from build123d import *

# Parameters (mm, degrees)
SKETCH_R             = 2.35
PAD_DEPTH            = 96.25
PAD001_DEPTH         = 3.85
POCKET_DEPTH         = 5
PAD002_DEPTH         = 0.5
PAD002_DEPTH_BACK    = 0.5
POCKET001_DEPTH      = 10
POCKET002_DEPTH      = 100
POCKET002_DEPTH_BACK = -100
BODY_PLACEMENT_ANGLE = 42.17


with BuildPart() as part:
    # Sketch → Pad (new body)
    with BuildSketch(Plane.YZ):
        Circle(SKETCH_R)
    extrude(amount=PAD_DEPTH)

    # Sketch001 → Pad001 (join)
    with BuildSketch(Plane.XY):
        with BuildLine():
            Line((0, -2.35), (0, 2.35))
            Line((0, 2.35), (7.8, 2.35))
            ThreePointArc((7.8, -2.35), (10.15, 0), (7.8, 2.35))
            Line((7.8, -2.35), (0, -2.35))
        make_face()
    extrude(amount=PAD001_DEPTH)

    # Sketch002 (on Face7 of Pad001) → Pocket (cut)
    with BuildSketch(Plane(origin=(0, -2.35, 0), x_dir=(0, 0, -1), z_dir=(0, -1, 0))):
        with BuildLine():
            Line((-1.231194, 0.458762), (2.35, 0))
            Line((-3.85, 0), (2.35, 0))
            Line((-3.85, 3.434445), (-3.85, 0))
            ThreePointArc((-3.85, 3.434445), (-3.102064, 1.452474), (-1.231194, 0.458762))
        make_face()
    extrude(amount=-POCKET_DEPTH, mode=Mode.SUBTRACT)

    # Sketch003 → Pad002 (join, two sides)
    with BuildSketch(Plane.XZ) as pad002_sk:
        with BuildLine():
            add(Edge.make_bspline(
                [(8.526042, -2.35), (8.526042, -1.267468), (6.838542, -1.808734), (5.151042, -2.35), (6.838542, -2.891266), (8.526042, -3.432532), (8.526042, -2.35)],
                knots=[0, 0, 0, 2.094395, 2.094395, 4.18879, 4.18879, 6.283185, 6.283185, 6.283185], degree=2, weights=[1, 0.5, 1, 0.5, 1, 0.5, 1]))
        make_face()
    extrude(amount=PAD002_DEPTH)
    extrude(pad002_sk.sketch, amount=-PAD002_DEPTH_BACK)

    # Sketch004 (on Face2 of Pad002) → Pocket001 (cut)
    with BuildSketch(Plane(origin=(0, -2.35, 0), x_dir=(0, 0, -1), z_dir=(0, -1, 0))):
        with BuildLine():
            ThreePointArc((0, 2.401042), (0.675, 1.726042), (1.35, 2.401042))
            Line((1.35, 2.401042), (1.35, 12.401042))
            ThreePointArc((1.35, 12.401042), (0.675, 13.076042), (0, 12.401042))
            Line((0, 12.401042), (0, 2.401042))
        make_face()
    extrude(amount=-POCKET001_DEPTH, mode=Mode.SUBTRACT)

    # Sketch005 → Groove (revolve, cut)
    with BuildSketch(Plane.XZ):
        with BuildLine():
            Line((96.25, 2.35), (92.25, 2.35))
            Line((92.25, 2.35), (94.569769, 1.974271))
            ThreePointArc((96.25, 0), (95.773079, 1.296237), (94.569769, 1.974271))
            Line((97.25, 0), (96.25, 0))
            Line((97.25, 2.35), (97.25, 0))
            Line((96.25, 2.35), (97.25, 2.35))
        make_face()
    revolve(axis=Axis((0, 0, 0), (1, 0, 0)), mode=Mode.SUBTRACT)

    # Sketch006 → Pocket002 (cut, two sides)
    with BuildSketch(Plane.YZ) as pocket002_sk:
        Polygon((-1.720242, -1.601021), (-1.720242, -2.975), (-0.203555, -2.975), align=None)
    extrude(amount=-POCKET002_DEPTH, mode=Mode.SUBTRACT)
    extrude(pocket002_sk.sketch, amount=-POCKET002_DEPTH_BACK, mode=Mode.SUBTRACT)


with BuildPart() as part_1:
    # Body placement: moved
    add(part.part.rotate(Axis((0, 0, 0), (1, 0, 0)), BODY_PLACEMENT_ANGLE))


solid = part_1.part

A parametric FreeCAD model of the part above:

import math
import FreeCAD as App
import Part
import Sketcher
Q = App.Units.Quantity

doc = App.newDocument("Part")
body = doc.addObject("PartDesign::Body", "Body")

sketch1 = body.newObject("Sketcher::SketchObject", "Sketch")
sketch1.AttachmentSupport = (doc.getObject("YZ_Plane"), [""])
sketch1.MapMode = "FlatFace"
sketch1.addGeometry(Part.Circle(App.Vector(0, 0, 0), App.Vector(0, 0, 1), 2.4), False)
sketch1.addConstraint(Sketcher.Constraint("Coincident", 0, 3, -1, 1))
sketch1.addConstraint(Sketcher.Constraint("Diameter", 0, 4.7))
pad1 = body.newObject("PartDesign::Pad", "Pad")
pad1.Profile = sketch1
pad1.Length = 96.25

sketch2 = body.newObject("Sketcher::SketchObject", "Sketch001")
sketch2.AttachmentSupport = (doc.getObject("XY_Plane"), [""])
sketch2.MapMode = "FlatFace"
sketch2.addGeometry(Part.LineSegment(App.Vector(0, 2.4, 0), App.Vector(0, -2.4, 0)), False)
sketch2.addGeometry(Part.LineSegment(App.Vector(0, -2.4, 0), App.Vector(7.8, -2.4, 0)), False)
sketch2.addGeometry(Part.ArcOfCircle(Part.Circle(App.Vector(7.8, 0, 0), App.Vector(0, 0, 1), 2.4), math.radians(-90), math.radians(90)), False)
sketch2.addGeometry(Part.LineSegment(App.Vector(7.8, 2.4, 0), App.Vector(0, 2.4, 0)), False)
sketch2.addConstraint(Sketcher.Constraint("Coincident", 0, 2, 1, 1))
sketch2.addConstraint(Sketcher.Constraint("Tangent", 1, 2, 2, 1))
sketch2.addConstraint(Sketcher.Constraint("Tangent", 2, 2, 3, 1))
sketch2.addConstraint(Sketcher.Constraint("Coincident", 3, 2, 0, 1))
sketch2.addConstraint(Sketcher.Constraint("Vertical", 0))
sketch2.addConstraint(Sketcher.Constraint("Horizontal", 1))
sketch2.addConstraint(Sketcher.Constraint("Horizontal", 3))
sketch2.addConstraint(Sketcher.Constraint("Symmetric", 0, 2, 3, 2, -1, 1))
sketch2.addConstraint(Sketcher.Constraint("Radius", 2, 2.35))
sketch2.addConstraint(Sketcher.Constraint("DistanceX", 1, 1, 1, 2, 7.8))
pad2 = body.newObject("PartDesign::Pad", "Pad001")
pad2.Profile = sketch2
pad2.Length = 3.85

sketch3 = body.newObject("Sketcher::SketchObject", "Sketch002")
sketch3.AttachmentSupport = (doc.getObject("XZ_Plane"), [""])
sketch3.MapMode = "FlatFace"
sketch3.AttachmentOffset = App.Placement(App.Vector(0, 0, 2.35), App.Rotation())
sketch3.addGeometry(Part.LineSegment(App.Vector(0, -2.4, 0), App.Vector(0.5, 1.2, 0)), False)
sketch3.addGeometry(Part.ArcOfCircle(Part.Circle(App.Vector(3.4, 0.9, 0), App.Vector(0, 0, 1), 3), math.radians(90), math.radians(173)), False)
sketch3.addGeometry(Part.LineSegment(App.Vector(3.4, 3.9, 0), App.Vector(0, 3.9, 0)), False)
sketch3.addGeometry(Part.LineSegment(App.Vector(0, 3.9, 0), App.Vector(0, -2.4, 0)), False)
sketch3.addConstraint(Sketcher.Constraint("Tangent", 0, 2, 1, 2))
sketch3.addConstraint(Sketcher.Constraint("Tangent", 1, 1, 2, 1))
sketch3.addConstraint(Sketcher.Constraint("Coincident", 2, 2, 3, 1))
sketch3.addConstraint(Sketcher.Constraint("Coincident", 3, 2, 0, 1))
sketch3.addConstraint(Sketcher.Constraint("Horizontal", 2))
sketch3.addConstraint(Sketcher.Constraint("Vertical", 3))
sketch3.addConstraint(Sketcher.Constraint("PointOnObject", 2, 2, -2))
sketch3.addConstraint(Sketcher.Constraint("Radius", 1, 2.999999))
sketch3.addConstraint(Sketcher.Constraint("DistanceY", 3, 2, 3, 1, 6.2))
sketch3.addConstraint(Sketcher.Constraint("Angle", 0, Q("82.699993 deg")))
sketch3.addConstraint(Sketcher.Constraint("DistanceY", -1, 1, 1, 3, 0.850001))
pocket1 = body.newObject("PartDesign::Pocket", "Pocket")
pocket1.Profile = sketch3
pocket1.Length = 5

sketch4 = body.newObject("Sketcher::SketchObject", "Sketch003")
sketch4.AttachmentSupport = (doc.getObject("XZ_Plane"), [""])
sketch4.MapMode = "FlatFace"
sketch4.addGeometry(Part.BSplineCurve([App.Vector(8.526042, -2.35, 0), App.Vector(8.526042, -1.267468, 0), App.Vector(6.838542, -1.808734, 0), App.Vector(5.151042, -2.35, 0), App.Vector(6.838542, -2.891266, 0), App.Vector(8.526042, -3.432532, 0), App.Vector(8.526042, -2.35, 0)], [3, 2, 2, 3], [0, 2.094395, 4.18879, 6.283185], False, 2, [1, 0.5, 1, 0.5, 1, 0.5, 1], False), False)
sketch4.addConstraint(Sketcher.Constraint("Block", 0))
pad3 = body.newObject("PartDesign::Pad", "Pad002")
pad3.Profile = sketch4
pad3.Type = "TwoLengths"
pad3.Length = 0.5
pad3.Length2 = 0.5

sketch5 = body.newObject("Sketcher::SketchObject", "Sketch004")
sketch5.AttachmentSupport = (doc.getObject("XZ_Plane"), [""])
sketch5.MapMode = "FlatFace"
sketch5.AttachmentOffset = App.Placement(App.Vector(0, 0, 2.35), App.Rotation())
sketch5.addGeometry(Part.ArcOfCircle(Part.Circle(App.Vector(2.4, -0.7, 0), App.Vector(0, 0, 1), 0.7), math.radians(90), math.radians(270)), False)
sketch5.addGeometry(Part.LineSegment(App.Vector(2.4, -1.4, 0), App.Vector(12.4, -1.4, 0)), False)
sketch5.addGeometry(Part.ArcOfCircle(Part.Circle(App.Vector(12.4, -0.7, 0), App.Vector(0, 0, 1), 0.7), math.radians(-90), math.radians(90)), False)
sketch5.addGeometry(Part.LineSegment(App.Vector(12.4, 0, 0), App.Vector(2.4, 0, 0)), False)
sketch5.addConstraint(Sketcher.Constraint("Tangent", 0, 2, 1, 1))
sketch5.addConstraint(Sketcher.Constraint("Tangent", 1, 2, 2, 1))
sketch5.addConstraint(Sketcher.Constraint("Tangent", 2, 2, 3, 1))
sketch5.addConstraint(Sketcher.Constraint("Tangent", 3, 2, 0, 1))
sketch5.addConstraint(Sketcher.Constraint("Horizontal", 1))
sketch5.addConstraint(Sketcher.Constraint("Horizontal", 3))
sketch5.addConstraint(Sketcher.Constraint("PointOnObject", 2, 2, -1))
sketch5.addConstraint(Sketcher.Constraint("DistanceX", 1, 1, 1, 2, 10.0))
sketch5.addConstraint(Sketcher.Constraint("Radius", 0, 0.675))
sketch5.addConstraint(Sketcher.Constraint("DistanceX", -1, 1, 0, 3, 2.401042))
pocket2 = body.newObject("PartDesign::Pocket", "Pocket001")
pocket2.Profile = sketch5
pocket2.Length = 10

sketch6 = body.newObject("Sketcher::SketchObject", "Sketch005")
sketch6.AttachmentSupport = (doc.getObject("XZ_Plane"), [""])
sketch6.MapMode = "FlatFace"
sketch6.addGeometry(Part.LineSegment(App.Vector(92.2, 2.4, 0), App.Vector(94.6, 2, 0)), False)
sketch6.addGeometry(Part.ArcOfCircle(Part.Circle(App.Vector(94.3, 0, 0), App.Vector(0, 0, 1), 2), math.radians(0), math.radians(81)), False)
sketch6.addGeometry(Part.LineSegment(App.Vector(96.2, 0, 0), App.Vector(97.2, 0, 0)), False)
sketch6.addGeometry(Part.LineSegment(App.Vector(97.2, 0, 0), App.Vector(97.2, 2.4, 0)), False)
sketch6.addGeometry(Part.LineSegment(App.Vector(97.2, 2.4, 0), App.Vector(92.2, 2.4, 0)), False)
sketch6.addConstraint(Sketcher.Constraint("Tangent", 0, 2, 1, 2))
sketch6.addConstraint(Sketcher.Constraint("Coincident", 1, 1, 2, 1))
sketch6.addConstraint(Sketcher.Constraint("Coincident", 2, 2, 3, 1))
sketch6.addConstraint(Sketcher.Constraint("Coincident", 3, 2, 4, 1))
sketch6.addConstraint(Sketcher.Constraint("Coincident", 4, 2, 0, 1))
sketch6.addConstraint(Sketcher.Constraint("Horizontal", 2))
sketch6.addConstraint(Sketcher.Constraint("Vertical", 3))
sketch6.addConstraint(Sketcher.Constraint("Horizontal", 4))
sketch6.addConstraint(Sketcher.Constraint("PointOnObject", 1, 3, -1))
sketch6.addConstraint(Sketcher.Constraint("PointOnObject", 1, 1, -1))
sketch6.addConstraint(Sketcher.Constraint("Radius", 1, 1.999999))
sketch6.addConstraint(Sketcher.Constraint("DistanceX", 2, 1, 2, 2, 1.0))
sketch6.addConstraint(Sketcher.Constraint("DistanceX", 4, 2, 4, 1, 5.0))
sketch6.addConstraint(Sketcher.Constraint("DistanceY", 3, 1, 3, 2, 2.35))
sketch6.addConstraint(Sketcher.Constraint("DistanceX", -1, 1, 1, 3, 94.250001))
groove = body.newObject("PartDesign::Groove", "Groove")
groove.Profile = sketch6
groove.ReferenceAxis = (sketch6, ["H_Axis"])
groove.Angle = 360

sketch7 = body.newObject("Sketcher::SketchObject", "Sketch006")
sketch7.AttachmentSupport = (doc.getObject("YZ_Plane"), [""])
sketch7.MapMode = "FlatFace"
sketch7.addGeometry(Part.LineSegment(App.Vector(-1.7, -1.6, 0), App.Vector(-1.7, -3, 0)), False)
sketch7.addGeometry(Part.LineSegment(App.Vector(-1.7, -3, 0), App.Vector(-0.2, -3, 0)), False)
sketch7.addGeometry(Part.LineSegment(App.Vector(-0.2, -3, 0), App.Vector(-1.7, -1.6, 0)), False)
sketch7.addConstraint(Sketcher.Constraint("Coincident", 0, 2, 1, 1))
sketch7.addConstraint(Sketcher.Constraint("Coincident", 1, 2, 2, 1))
sketch7.addConstraint(Sketcher.Constraint("Coincident", 2, 2, 0, 1))
sketch7.addConstraint(Sketcher.Constraint("Vertical", 0))
sketch7.addConstraint(Sketcher.Constraint("Horizontal", 1))
sketch7.addConstraint(Sketcher.Constraint("DistanceY", 0, 2, -1, 1, 2.975))
sketch7.addConstraint(Sketcher.Constraint("Distance", 2, 2.046499))
sketch7.addConstraint(Sketcher.Constraint("DistanceY", 0, 2, 0, 1, 1.373979))
sketch7.addConstraint(Sketcher.Constraint("DistanceX", 0, 2, -1, 1, 1.720242))
pocket3 = body.newObject("PartDesign::Pocket", "Pocket002")
pocket3.Profile = sketch7
pocket3.Type = "ThroughAll"
pocket3.Midplane = True
body2 = doc.addObject("PartDesign::Body", "Body001")
doc.recompute()

body.Placement = App.Placement(App.Vector(0, 0, 0), App.Rotation(App.Vector(1, 0, 0), 42.17))
boolean = body2.newObject("PartDesign::Boolean", "Boolean")
boolean.Type = "Fuse"
boolean.addObjects([body])

doc.recompute()
